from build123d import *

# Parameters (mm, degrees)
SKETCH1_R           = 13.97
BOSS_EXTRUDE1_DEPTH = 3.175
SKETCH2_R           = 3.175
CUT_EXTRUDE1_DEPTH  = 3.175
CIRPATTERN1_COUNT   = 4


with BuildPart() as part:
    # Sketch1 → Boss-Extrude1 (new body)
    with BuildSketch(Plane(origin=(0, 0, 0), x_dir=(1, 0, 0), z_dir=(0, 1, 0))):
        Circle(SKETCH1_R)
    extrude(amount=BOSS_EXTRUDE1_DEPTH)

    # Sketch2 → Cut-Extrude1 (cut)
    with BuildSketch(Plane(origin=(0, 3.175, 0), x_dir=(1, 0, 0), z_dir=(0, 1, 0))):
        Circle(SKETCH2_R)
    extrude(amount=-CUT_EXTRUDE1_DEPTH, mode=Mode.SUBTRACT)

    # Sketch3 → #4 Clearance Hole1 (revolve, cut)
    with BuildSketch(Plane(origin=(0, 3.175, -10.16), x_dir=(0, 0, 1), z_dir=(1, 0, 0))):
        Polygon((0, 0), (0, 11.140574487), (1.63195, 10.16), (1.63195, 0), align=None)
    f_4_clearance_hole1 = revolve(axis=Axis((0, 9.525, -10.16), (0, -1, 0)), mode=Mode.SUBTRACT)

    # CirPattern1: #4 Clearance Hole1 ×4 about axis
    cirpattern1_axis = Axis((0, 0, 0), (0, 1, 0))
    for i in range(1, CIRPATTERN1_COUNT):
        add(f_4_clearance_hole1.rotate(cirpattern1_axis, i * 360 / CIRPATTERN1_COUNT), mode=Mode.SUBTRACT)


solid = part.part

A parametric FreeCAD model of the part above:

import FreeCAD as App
import Part
import Sketcher
Q = App.Units.Quantity

doc = App.newDocument("Part")
body = doc.addObject("PartDesign::Body", "Body")

sketch1 = body.newObject("Sketcher::SketchObject", "Sketch")
sketch1.AttachmentSupport = (doc.getObject("XZ_Plane"), [""])
sketch1.MapMode = "FlatFace"
sketch1.addGeometry(Part.Circle(App.Vector(0, 0, 0), App.Vector(0, 0, 1), 14), False)
sketch1.addConstraint(Sketcher.Constraint("Coincident", 0, 3, -1, 1))
sketch1.addConstraint(Sketcher.Constraint("Diameter", 0, Q("1.1 in")))
pad1 = body.newObject("PartDesign::Pad", "Pad")
pad1.Profile = sketch1
pad1.Length = Q("0.125 in")
pad1.Reversed = True

sketch2 = body.newObject("Sketcher::SketchObject", "Sketch001")
sketch2.AttachmentSupport = (doc.getObject("XZ_Plane"), [""])
sketch2.MapMode = "FlatFace"
sketch2.AttachmentOffset = App.Placement(App.Vector(0, 0, -0.125 * 25.4), App.Rotation())
sketch2.addGeometry(Part.Circle(App.Vector(0, 0, 0), App.Vector(0, 0, 1), 3.2), False)
sketch2.addConstraint(Sketcher.Constraint("Coincident", 0, 3, -1, 1))
sketch2.addConstraint(Sketcher.Constraint("Diameter", 0, Q("0.25 in")))
pocket1 = body.newObject("PartDesign::Pocket", "Pocket")
pocket1.Profile = sketch2
pocket1.Length = Q("0.125 in")
pocket1.Reversed = True

sketch3 = body.newObject("Sketcher::SketchObject", "Sketch002")
sketch3.AttachmentSupport = (doc.getObject("YZ_Plane"), [""])
sketch3.MapMode = "FlatFace"
sketch3.addGeometry(Part.LineSegment(App.Vector(-8, -10.2, 0), App.Vector(3.2, -10.2, 0)), False)
sketch3.addGeometry(Part.LineSegment(App.Vector(3.2, -10.2, 0), App.Vector(3.2, -8.5, 0)), False)
sketch3.addGeometry(Part.LineSegment(App.Vector(3.2, -8.5, 0), App.Vector(-7, -8.5, 0)), False)
sketch3.addGeometry(Part.LineSegment(App.Vector(-7, -8.5, 0), App.Vector(-8, -10.2, 0)), False)
sketch3.addGeometry(Part.LineSegment(App.Vector(3.2, -10.2, 0), App.Vector(-8, -10.2, 0)), True)
sketch3.addConstraint(Sketcher.Constraint("Coincident", 0, 2, 1, 1))
sketch3.addConstraint(Sketcher.Constraint("Coincident", 1, 2, 2, 1))
sketch3.addConstraint(Sketcher.Constraint("Coincident", 2, 2, 3, 1))
sketch3.addConstraint(Sketcher.Constraint("Coincident", 3, 2, 0, 1))
sketch3.addConstraint(Sketcher.Constraint("Horizontal", 0))
sketch3.addConstraint(Sketcher.Constraint("Vertical", 1))
sketch3.addConstraint(Sketcher.Constraint("Horizontal", 2))
sketch3.addConstraint(Sketcher.Constraint("Horizontal", 4))
sketch3.addConstraint(Sketcher.Constraint("Coincident", 4, 1, 0, 2))
sketch3.addConstraint(Sketcher.Constraint("Equal", 0, 4))
sketch3.addConstraint(Sketcher.Constraint("DistanceX", 2, 2, 2, 1, Q("0.4 in")))
sketch3.addConstraint(Sketcher.Constraint("Angle", 3, Q("-121 deg")))
sketch3.addConstraint(Sketcher.Constraint("DistanceY", 0, 2, -1, 1, Q("0.4 in")))
sketch3.addConstraint(Sketcher.Constraint("DistanceX", -1, 1, 0, 2, Q("0.125 in")))
sketch3.addConstraint(Sketcher.Constraint("DistanceY", 1, 1, 1, 2, Q("1.63195 mm")))
groove = body.newObject("PartDesign::Groove", "Groove")
groove.Profile = sketch3
groove.ReferenceAxis = (sketch3, ["Axis0"])
groove.Angle = 360
doc.recompute()

polarpattern = body.newObject("PartDesign::PolarPattern", "PolarPattern")
polarpattern.Originals = [groove]
polarpattern.Axis = (doc.getObject("Y_Axis"), [""])
polarpattern.Angle = 360
polarpattern.Occurrences = 4
body.Tip = polarpattern

doc.recompute()
